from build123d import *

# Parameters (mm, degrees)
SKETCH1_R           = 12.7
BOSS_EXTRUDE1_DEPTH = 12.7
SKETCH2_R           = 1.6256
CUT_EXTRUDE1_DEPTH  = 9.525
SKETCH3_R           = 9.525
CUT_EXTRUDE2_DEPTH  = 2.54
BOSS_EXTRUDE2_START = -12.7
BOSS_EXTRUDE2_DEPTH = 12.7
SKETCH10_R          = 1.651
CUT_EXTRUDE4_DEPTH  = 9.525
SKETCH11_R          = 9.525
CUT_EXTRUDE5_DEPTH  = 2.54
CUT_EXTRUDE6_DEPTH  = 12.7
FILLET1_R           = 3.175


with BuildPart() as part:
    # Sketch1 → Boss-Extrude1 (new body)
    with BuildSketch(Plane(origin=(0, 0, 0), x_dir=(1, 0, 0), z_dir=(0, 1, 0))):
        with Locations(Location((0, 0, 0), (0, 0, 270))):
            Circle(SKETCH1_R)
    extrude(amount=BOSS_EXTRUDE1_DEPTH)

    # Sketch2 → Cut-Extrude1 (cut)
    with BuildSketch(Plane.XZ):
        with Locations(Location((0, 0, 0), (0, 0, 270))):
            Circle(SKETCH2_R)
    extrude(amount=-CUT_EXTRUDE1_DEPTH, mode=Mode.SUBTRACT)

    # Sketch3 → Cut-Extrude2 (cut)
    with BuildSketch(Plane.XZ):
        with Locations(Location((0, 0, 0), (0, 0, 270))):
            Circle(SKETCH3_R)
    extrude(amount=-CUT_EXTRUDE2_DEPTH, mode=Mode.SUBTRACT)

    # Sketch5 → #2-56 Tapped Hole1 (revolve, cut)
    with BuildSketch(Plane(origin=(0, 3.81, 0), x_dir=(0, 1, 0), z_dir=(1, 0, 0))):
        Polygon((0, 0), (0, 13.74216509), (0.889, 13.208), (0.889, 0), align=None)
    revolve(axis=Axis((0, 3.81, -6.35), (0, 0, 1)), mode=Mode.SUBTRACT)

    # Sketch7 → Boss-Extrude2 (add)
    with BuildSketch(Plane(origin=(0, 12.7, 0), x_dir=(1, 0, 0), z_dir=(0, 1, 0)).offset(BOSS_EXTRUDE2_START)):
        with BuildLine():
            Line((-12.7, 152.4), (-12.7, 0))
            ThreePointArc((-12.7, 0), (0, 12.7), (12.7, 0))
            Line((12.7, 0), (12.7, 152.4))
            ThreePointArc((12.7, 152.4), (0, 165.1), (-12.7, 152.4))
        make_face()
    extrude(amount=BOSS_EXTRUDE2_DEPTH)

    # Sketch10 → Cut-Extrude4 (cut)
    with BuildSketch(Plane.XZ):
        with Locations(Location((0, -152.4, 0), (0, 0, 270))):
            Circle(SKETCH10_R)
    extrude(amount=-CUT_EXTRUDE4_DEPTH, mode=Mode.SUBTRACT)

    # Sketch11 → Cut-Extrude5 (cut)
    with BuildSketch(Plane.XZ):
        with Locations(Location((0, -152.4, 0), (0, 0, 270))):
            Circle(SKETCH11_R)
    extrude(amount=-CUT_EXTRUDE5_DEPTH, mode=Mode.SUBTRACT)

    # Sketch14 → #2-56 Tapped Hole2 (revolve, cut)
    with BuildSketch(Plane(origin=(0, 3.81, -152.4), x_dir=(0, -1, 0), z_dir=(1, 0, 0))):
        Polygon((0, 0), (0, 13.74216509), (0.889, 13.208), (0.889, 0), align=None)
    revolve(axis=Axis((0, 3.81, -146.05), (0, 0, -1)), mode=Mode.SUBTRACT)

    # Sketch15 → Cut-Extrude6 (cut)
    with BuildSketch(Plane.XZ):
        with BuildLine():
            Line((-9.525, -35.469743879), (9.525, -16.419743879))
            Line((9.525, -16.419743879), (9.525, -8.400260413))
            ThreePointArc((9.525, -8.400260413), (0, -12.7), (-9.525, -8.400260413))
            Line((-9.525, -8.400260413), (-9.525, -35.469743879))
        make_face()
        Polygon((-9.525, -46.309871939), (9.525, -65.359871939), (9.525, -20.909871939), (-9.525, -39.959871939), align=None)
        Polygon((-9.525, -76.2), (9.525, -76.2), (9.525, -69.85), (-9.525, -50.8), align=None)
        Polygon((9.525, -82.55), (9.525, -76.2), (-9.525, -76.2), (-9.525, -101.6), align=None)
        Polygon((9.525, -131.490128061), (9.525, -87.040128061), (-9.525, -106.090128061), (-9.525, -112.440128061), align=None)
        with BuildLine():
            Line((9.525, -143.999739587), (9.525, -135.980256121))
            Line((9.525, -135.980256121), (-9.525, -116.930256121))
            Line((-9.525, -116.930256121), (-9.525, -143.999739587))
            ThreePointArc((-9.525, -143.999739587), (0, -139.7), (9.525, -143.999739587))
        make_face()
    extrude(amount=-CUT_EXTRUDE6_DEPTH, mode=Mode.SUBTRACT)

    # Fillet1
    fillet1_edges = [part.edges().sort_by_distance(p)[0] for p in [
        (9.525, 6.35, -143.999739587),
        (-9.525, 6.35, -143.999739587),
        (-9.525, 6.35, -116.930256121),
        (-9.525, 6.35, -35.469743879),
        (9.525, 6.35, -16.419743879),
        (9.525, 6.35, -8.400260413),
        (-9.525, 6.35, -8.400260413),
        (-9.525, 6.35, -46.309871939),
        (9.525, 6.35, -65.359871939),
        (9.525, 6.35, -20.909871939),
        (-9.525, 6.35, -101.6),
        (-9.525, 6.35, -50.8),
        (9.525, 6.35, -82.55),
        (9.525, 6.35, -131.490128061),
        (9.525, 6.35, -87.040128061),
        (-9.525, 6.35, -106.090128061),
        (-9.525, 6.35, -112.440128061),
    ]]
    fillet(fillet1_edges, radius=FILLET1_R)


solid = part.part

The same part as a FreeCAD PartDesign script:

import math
import FreeCAD as App
import Part
import Sketcher

V = App.Vector
Q = App.Units.Quantity


def edges_at(feature, points):
    """Names of the edges that pass closest to the given points."""
    edges = feature.Shape.Edges
    near = lambda p: min(range(len(edges)), key=lambda i: edges[i].distToShape(Part.Vertex(*p))[0])
    return sorted({f"Edge{near(p) + 1}" for p in points})

doc = App.newDocument("Part")
body = doc.addObject("PartDesign::Body", "Body")

sketch1 = body.newObject("Sketcher::SketchObject", "Sketch")
sketch1.AttachmentSupport = (doc.getObject("XZ_Plane"), [""])
sketch1.MapMode = "FlatFace"
sketch1.addGeometry(Part.Circle(V(0, 0, 0), V(0, 0, 1), 13), False)
sketch1.addConstraint([
    Sketcher.Constraint("Coincident", 0, 3, -1, 1),
    Sketcher.Constraint("Diameter", 0, Q("1 in")),
])
pad1 = body.newObject("PartDesign::Pad", "Pad")
pad1.Profile = sketch1
pad1.Length = Q("0.5 in")
pad1.Reversed = True

sketch2 = body.newObject("Sketcher::SketchObject", "Sketch001")
sketch2.AttachmentSupport = (doc.getObject("XZ_Plane"), [""])
sketch2.MapMode = "FlatFace"
sketch2.addGeometry(Part.Circle(V(0, 0, 0), V(0, 0, 1), 1.6), False)
sketch2.addConstraint([
    Sketcher.Constraint("Coincident", 0, 3, -1, 1),
    Sketcher.Constraint("Diameter", 0, Q("0.128 in")),
])
pocket1 = body.newObject("PartDesign::Pocket", "Pocket")
pocket1.Profile = sketch2
pocket1.Length = Q("0.375 in")

sketch3 = body.newObject("Sketcher::SketchObject", "Sketch002")
sketch3.AttachmentSupport = (doc.getObject("XZ_Plane"), [""])
sketch3.MapMode = "FlatFace"
sketch3.addGeometry(Part.Circle(V(0, 0, 0), V(0, 0, 1), 10), False)
sketch3.addConstraint([
    Sketcher.Constraint("Coincident", 0, 3, -1, 1),
    Sketcher.Constraint("Diameter", 0, Q("0.75 in")),
])
pocket2 = body.newObject("PartDesign::Pocket", "Pocket001")
pocket2.Profile = sketch3
pocket2.Length = Q("0.1 in")

sketch4 = body.newObject("Sketcher::SketchObject", "Sketch003")
sketch4.AttachmentSupport = (doc.getObject("YZ_Plane"), [""])
sketch4.MapMode = "FlatFace"
sketch4.addGeometry([
    Part.LineSegment(V(3.8, 13.7, 0), V(3.8, 0, 0)),
    Part.LineSegment(V(3.8, 0, 0), V(4.7, 0, 0)),
    Part.LineSegment(V(4.7, 0, 0), V(4.7, 13.2, 0)),
    Part.LineSegment(V(4.7, 13.2, 0), V(3.8, 13.7, 0)),
], False)
sketch4.addGeometry(Part.LineSegment(V(3.8, 0, 0), V(3.8, 13.7, 0)), True)
sketch4.addConstraint([
    Sketcher.Constraint("Coincident", 0, 2, 1, 1),
    Sketcher.Constraint("Coincident", 1, 2, 2, 1),
    Sketcher.Constraint("Coincident", 2, 2, 3, 1),
    Sketcher.Constraint("Coincident", 3, 2, 0, 1),
    Sketcher.Constraint("Vertical", 0),
    Sketcher.Constraint("Horizontal", 1),
    Sketcher.Constraint("Vertical", 2),
    Sketcher.Constraint("Vertical", 4),
    Sketcher.Constraint("Coincident", 4, 1, 0, 2),
    Sketcher.Constraint("PointOnObject", 0, 2, -1),
    Sketcher.Constraint("Equal", 0, 4),
    Sketcher.Constraint("Angle", 3, Q("149 deg")),
    Sketcher.Constraint("DistanceY", 2, 1, 2, 2, Q("0.52 in")),
    Sketcher.Constraint("DistanceX", 1, 1, 1, 2, Q("0.035 in")),
    Sketcher.Constraint("DistanceX", -1, 1, 0, 2, Q("0.15 in")),
])
groove = body.newObject("PartDesign::Groove", "Groove")
groove.Profile = sketch4
groove.ReferenceAxis = (sketch4, ["Axis0"])
groove.Angle = 360

sketch5 = body.newObject("Sketcher::SketchObject", "Sketch004")
sketch5.AttachmentSupport = (doc.getObject("XZ_Plane"), [""])
sketch5.MapMode = "FlatFace"
sketch5.addGeometry([
    Part.LineSegment(V(-13, -152, 0), V(-13, 0, 0)),
    Part.ArcOfCircle(Part.Circle(V(0, 0, 0), V(0, 0, 1), 13), math.radians(180), math.radians(360)),
    Part.LineSegment(V(13, 0, 0), V(13, -152, 0)),
    Part.ArcOfCircle(Part.Circle(V(0, -152, 0), V(0, 0, 1), 13), math.radians(180), math.radians(360)),
], False)
sketch5.addConstraint([
    Sketcher.Constraint("Tangent", 0, 2, 1, 1),
    Sketcher.Constraint("Tangent", 1, 2, 2, 1),
    Sketcher.Constraint("Tangent", 2, 2, 3, 2),
    Sketcher.Constraint("Tangent", 3, 1, 0, 1),
    Sketcher.Constraint("Vertical", 0),
    Sketcher.Constraint("Vertical", 2),
    Sketcher.Constraint("Coincident", 1, 3, -1, 1),
    Sketcher.Constraint("Radius", 1, Q("0.5 in")),
    Sketcher.Constraint("DistanceY", 0, 1, 0, 2, Q("6 in")),
])
pad2 = body.newObject("PartDesign::Pad", "Pad001")
pad2.Profile = sketch5
pad2.Length = Q("0.5 in")
pad2.Reversed = True

sketch6 = body.newObject("Sketcher::SketchObject", "Sketch005")
sketch6.AttachmentSupport = (doc.getObject("XZ_Plane"), [""])
sketch6.MapMode = "FlatFace"
sketch6.addGeometry(Part.Circle(V(0, -152.4, 0), V(0, 0, 1), 1.7), False)
sketch6.addConstraint([
    Sketcher.Constraint("PointOnObject", 0, 3, -2),
    Sketcher.Constraint("Diameter", 0, Q("0.13 in")),
    Sketcher.Constraint("DistanceY", 0, 3, -1, 1, Q("6 in")),
])
pocket3 = body.newObject("PartDesign::Pocket", "Pocket002")
pocket3.Profile = sketch6
pocket3.Length = Q("0.375 in")

sketch7 = body.newObject("Sketcher::SketchObject", "Sketch006")
sketch7.AttachmentSupport = (doc.getObject("XZ_Plane"), [""])
sketch7.MapMode = "FlatFace"
sketch7.addGeometry(Part.Circle(V(0, -152, 0), V(0, 0, 1), 10), False)
sketch7.addConstraint([
    Sketcher.Constraint("PointOnObject", 0, 3, -2),
    Sketcher.Constraint("Diameter", 0, Q("0.75 in")),
    Sketcher.Constraint("DistanceY", 0, 3, -1, 1, Q("6 in")),
])
pocket4 = body.newObject("PartDesign::Pocket", "Pocket003")
pocket4.Profile = sketch7
pocket4.Length = Q("0.1 in")

sketch8 = body.newObject("Sketcher::SketchObject", "Sketch007")
sketch8.AttachmentSupport = (doc.getObject("YZ_Plane"), [""])
sketch8.MapMode = "FlatFace"
sketch8.addGeometry([
    Part.LineSegment(V(3.8, -166.1, 0), V(3.8, -152.4, 0)),
    Part.LineSegment(V(3.8, -152.4, 0), V(2.9, -152.4, 0)),
    Part.LineSegment(V(2.9, -152.4, 0), V(2.9, -165.6, 0)),
    Part.LineSegment(V(2.9, -165.6, 0), V(3.8, -166.1, 0)),
], False)
sketch8.addGeometry(Part.LineSegment(V(3.8, -152.4, 0), V(3.8, -166.1, 0)), True)
sketch8.addConstraint([
    Sketcher.Constraint("Coincident", 0, 2, 1, 1),
    Sketcher.Constraint("Coincident", 1, 2, 2, 1),
    Sketcher.Constraint("Coincident", 2, 2, 3, 1),
    Sketcher.Constraint("Coincident", 3, 2, 0, 1),
    Sketcher.Constraint("Vertical", 0),
    Sketcher.Constraint("Horizontal", 1),
    Sketcher.Constraint("Vertical", 2),
    Sketcher.Constraint("Vertical", 4),
    Sketcher.Constraint("Coincident", 4, 1, 0, 2),
    Sketcher.Constraint("Equal", 0, 4),
    Sketcher.Constraint("DistanceY", 0, 2, -1, 1, Q("6 in")),
    Sketcher.Constraint("Angle", 3, Q("-31 deg")),
    Sketcher.Constraint("DistanceY", 2, 2, 2, 1, Q("0.52 in")),
    Sketcher.Constraint("DistanceX", 1, 2, 1, 1, Q("0.035 in")),
    Sketcher.Constraint("DistanceX", -1, 1, 0, 2, Q("0.15 in")),
])
groove2 = body.newObject("PartDesign::Groove", "Groove001")
groove2.Profile = sketch8
groove2.ReferenceAxis = (sketch8, ["Axis0"])
groove2.Angle = 360

sketch9 = body.newObject("Sketcher::SketchObject", "Sketch008")
sketch9.AttachmentSupport = (doc.getObject("XZ_Plane"), [""])
sketch9.MapMode = "FlatFace"
sketch9.addGeometry([
    Part.LineSegment(V(-10, -35, 0), V(10, -16, 0)),
    Part.LineSegment(V(10, -16, 0), V(10, -8, 0)),
    Part.ArcOfCircle(Part.Circle(V(0, 0, 0), V(0, 0, 1), 13), math.radians(-139), math.radians(-41)),
    Part.LineSegment(V(-10, -8, 0), V(-10, -35, 0)),
    Part.LineSegment(V(-10, -46, 0), V(10, -65, 0)),
    Part.LineSegment(V(10, -65, 0), V(10, -21, 0)),
    Part.LineSegment(V(10, -21, 0), V(-10, -40, 0)),
    Part.LineSegment(V(-10, -40, 0), V(-10, -46, 0)),
    Part.LineSegment(V(10, -70, 0), V(-10, -51, 0)),
    Part.LineSegment(V(-10, -51, 0), V(-10, -102, 0)),
    Part.LineSegment(V(-10, -102, 0), V(10, -83, 0)),
    Part.LineSegment(V(10, -83, 0), V(10, -70, 0)),
    Part.LineSegment(V(10, -131, 0), V(10, -87, 0)),
    Part.LineSegment(V(10, -87, 0), V(-10, -106, 0)),
    Part.LineSegment(V(-10, -106, 0), V(-10, -112, 0)),
    Part.LineSegment(V(-10, -112, 0), V(10, -131, 0)),
    Part.LineSegment(V(10, -144, 0), V(10, -136, 0)),
    Part.LineSegment(V(10, -136, 0), V(-10, -117, 0)),
    Part.LineSegment(V(-10, -117, 0), V(-10, -144, 0)),
    Part.ArcOfCircle(Part.Circle(V(0, -152, 0), V(0, 0, 1), 13), math.radians(41), math.radians(139)),
], False)
sketch9.addConstraint([
    Sketcher.Constraint("Coincident", 0, 2, 1, 1),
    Sketcher.Constraint("Coincident", 1, 2, 2, 2),
    Sketcher.Constraint("Coincident", 2, 1, 3, 1),
    Sketcher.Constraint("Coincident", 3, 2, 0, 1),
    Sketcher.Constraint("Coincident", 4, 2, 5, 1),
    Sketcher.Constraint("Coincident", 5, 2, 6, 1),
    Sketcher.Constraint("Coincident", 6, 2, 7, 1),
    Sketcher.Constraint("Coincident", 7, 2, 4, 1),
    Sketcher.Constraint("Coincident", 8, 2, 9, 1),
    Sketcher.Constraint("Coincident", 9, 2, 10, 1),
    Sketcher.Constraint("Coincident", 10, 2, 11, 1),
    Sketcher.Constraint("Coincident", 11, 2, 8, 1),
    Sketcher.Constraint("Coincident", 12, 2, 13, 1),
    Sketcher.Constraint("Coincident", 13, 2, 14, 1),
    Sketcher.Constraint("Coincident", 14, 2, 15, 1),
    Sketcher.Constraint("Coincident", 15, 2, 12, 1),
    Sketcher.Constraint("Coincident", 16, 2, 17, 1),
    Sketcher.Constraint("Coincident", 17, 2, 18, 1),
    Sketcher.Constraint("Coincident", 18, 2, 19, 2),
    Sketcher.Constraint("Coincident", 19, 1, 16, 1),
    Sketcher.Constraint("Vertical", 1),
    Sketcher.Constraint("Vertical", 3),
    Sketcher.Constraint("Vertical", 5),
    Sketcher.Constraint("Vertical", 7),
    Sketcher.Constraint("Vertical", 9),
    Sketcher.Constraint("Vertical", 11),
    Sketcher.Constraint("Vertical", 12),
    Sketcher.Constraint("Vertical", 14),
    Sketcher.Constraint("Vertical", 16),
    Sketcher.Constraint("Vertical", 18),
    Sketcher.Constraint("Coincident", 2, 3, -1, 1),
    Sketcher.Constraint("Equal", 2, 19),
    Sketcher.Constraint("Symmetric", 18, 2, 19, 1, -2),
    Sketcher.Constraint("Perpendicular", 0, 4),
    Sketcher.Constraint("Perpendicular", 4, 6),
    Sketcher.Constraint("Perpendicular", 6, 8),
    Sketcher.Constraint("Perpendicular", 8, 10),
    Sketcher.Constraint("Parallel", 10, 13),
    Sketcher.Constraint("Perpendicular", 13, 15),
    Sketcher.Constraint("Parallel", 15, 17),
    Sketcher.Constraint("Horizontal", 1, 2, 2, 1),
    Sketcher.Constraint("Vertical", 1, 2, 4, 2),
    Sketcher.Constraint("Vertical", 3, 2, 6, 2),
    Sketcher.Constraint("Vertical", 7, 2, 8, 2),
    Sketcher.Constraint("Vertical", 5, 2, 10, 2),
    Sketcher.Constraint("Vertical", 11, 2, 12, 2),
    Sketcher.Constraint("Vertical", 9, 2, 13, 2),
    Sketcher.Constraint("Vertical", 15, 2, 16, 2),
    Sketcher.Constraint("Equal", 5, 12),
    Sketcher.Constraint("Equal", 1, 16),
    Sketcher.Constraint("Equal", 3, 18),
    Sketcher.Constraint("Radius", 2, Q("0.5 in")),
    Sketcher.Constraint("DistanceY", 9, 2, 9, 1, Q("2 in")),
    Sketcher.Constraint("DistanceY", 11, 1, 11, 2, Q("0.5 in")),
    Sketcher.Constraint("DistanceY", 19, 3, -1, 1, Q("6 in")),
    Sketcher.Constraint("DistanceY", 8, 2, -1, 1, Q("2 in")),
    Sketcher.Constraint("DistanceY", 4, 2, 6, 2, Q("1 in")),
    Sketcher.Constraint("DistanceY", 1, 1, 1, 2, Q("8.019483 mm")),
    Sketcher.Constraint("DistanceY", 4, 2, -1, 1, Q("65.359872 mm")),
    Sketcher.Constraint("DistanceY", 12, 2, -1, 1, Q("87.040128 mm")),
])
pocket5 = body.newObject("PartDesign::Pocket", "Pocket004")
pocket5.Profile = sketch9
pocket5.Length = Q("0.5 in")
doc.recompute()

fillet = body.newObject("PartDesign::Fillet", "Fillet")
fillet.Base = (pocket5, edges_at(pocket5, [
    (9.525, 6.35, -144),
    (-9.525, 6.35, -144),
    (-9.525, 6.35, -116.93),
    (-9.525, 6.35, -35.47),
    (9.525, 6.35, -16.42),
    (9.525, 6.35, -8.4),
    (-9.525, 6.35, -8.4),
    (-9.525, 6.35, -46.31),
    (9.525, 6.35, -65.36),
    (9.525, 6.35, -20.91),
    (-9.525, 6.35, -101.6),
    (-9.525, 6.35, -50.8),
    (9.525, 6.35, -82.55),
    (9.525, 6.35, -131.49),
    (9.525, 6.35, -87.04),
    (-9.525, 6.35, -106.09),
    (-9.525, 6.35, -112.44),
]))
fillet.Radius = Q("0.125 in")

doc.recompute()
